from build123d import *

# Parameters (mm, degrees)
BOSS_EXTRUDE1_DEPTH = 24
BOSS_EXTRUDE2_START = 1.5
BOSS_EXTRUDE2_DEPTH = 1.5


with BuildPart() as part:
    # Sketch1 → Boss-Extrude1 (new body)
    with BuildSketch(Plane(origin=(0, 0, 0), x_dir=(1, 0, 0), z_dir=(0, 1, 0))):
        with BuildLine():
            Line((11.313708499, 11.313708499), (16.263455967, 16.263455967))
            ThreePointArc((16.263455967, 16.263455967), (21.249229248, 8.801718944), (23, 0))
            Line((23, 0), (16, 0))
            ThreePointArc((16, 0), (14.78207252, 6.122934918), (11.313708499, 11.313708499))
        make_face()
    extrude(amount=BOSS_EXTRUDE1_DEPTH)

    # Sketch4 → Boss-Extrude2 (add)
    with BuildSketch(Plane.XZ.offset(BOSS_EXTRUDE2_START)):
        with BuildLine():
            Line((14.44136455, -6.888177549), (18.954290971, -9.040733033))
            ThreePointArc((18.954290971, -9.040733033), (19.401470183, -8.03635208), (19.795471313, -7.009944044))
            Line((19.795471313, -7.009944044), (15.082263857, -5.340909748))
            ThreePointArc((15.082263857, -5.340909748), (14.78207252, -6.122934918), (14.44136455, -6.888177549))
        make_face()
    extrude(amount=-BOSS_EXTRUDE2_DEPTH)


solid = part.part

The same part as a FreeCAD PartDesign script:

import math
import FreeCAD as App
import Part
import Sketcher
Q = App.Units.Quantity

doc = App.newDocument("Part")
params = doc.addObject("Spreadsheet::Sheet", "Params")
for row, (alias, value) in enumerate([
    ("sketch1_radius", "16 mm"),
    ("sketch1_radius2", "23 mm"),
    ("pad1_length", "24 mm"),
    ("sketch2_radius", "21 mm"),
    ("sketch2_radius2", "16 mm"),
    ("pad2_length", "1.5 mm"),
], start=1):
    params.set(f"A{row}", alias)
    params.set(f"B{row}", "=" + value)
    params.setAlias(f"B{row}", alias)

body = doc.addObject("PartDesign::Body", "Body")

sketch1 = doc.addObject("Sketcher::SketchObject", "Sketch")
body.addObject(sketch1)
sketch1.AttachmentSupport = (doc.XZ_Plane, [""])
sketch1.MapMode = "FlatFace"
sketch1.addGeometry(Part.LineSegment(App.Vector(16.263456, -16.263456, 0), App.Vector(11.313708, -11.313708, 0)), False)
sketch1.addGeometry(Part.ArcOfCircle(Part.Circle(App.Vector(0, 0, 0), App.Vector(0, 0, 1), 16), math.radians(-45), math.radians(0)), False)
sketch1.addGeometry(Part.LineSegment(App.Vector(16, 0, 0), App.Vector(23, 0, 0)), False)
sketch1.addGeometry(Part.ArcOfCircle(Part.Circle(App.Vector(0, 0, 0), App.Vector(0, 0, 1), 23), math.radians(-45), math.radians(0)), False)
sketch1.addConstraint(Sketcher.Constraint("Coincident", 0, 2, 1, 1))
sketch1.addConstraint(Sketcher.Constraint("Coincident", 1, 2, 2, 1))
sketch1.addConstraint(Sketcher.Constraint("Coincident", 2, 2, 3, 2))
sketch1.addConstraint(Sketcher.Constraint("Coincident", 3, 1, 0, 1))
sketch1.addConstraint(Sketcher.Constraint("Horizontal", 2))
sketch1.addConstraint(Sketcher.Constraint("Coincident", 1, 3, -1, 1))
sketch1.addConstraint(Sketcher.Constraint("Coincident", 3, 3, -1, 1))
sketch1.addConstraint(Sketcher.Constraint("PointOnObject", 1, 2, -1))
sketch1.addConstraint(Sketcher.Constraint("Radius", 1, 16.0))
sketch1.addConstraint(Sketcher.Constraint("Radius", 3, 23.0))
sketch1.addConstraint(Sketcher.Constraint("Angle", 0, Q("135 deg")))
sketch1.addConstraint(Sketcher.Constraint("DistanceX", -1, 1, 0, 2, 11.313708))
sketch1.setExpression("Constraints[8]", "Params.sketch1_radius")
sketch1.setExpression("Constraints[9]", "Params.sketch1_radius2")
pad1 = doc.addObject("PartDesign::Pad", "Pad")
body.addObject(pad1)
pad1.Profile = sketch1
pad1.setExpression("Length", "Params.pad1_length")
pad1.Reversed = True

sketch2 = doc.addObject("Sketcher::SketchObject", "Sketch001")
body.addObject(sketch2)
sketch2.AttachmentSupport = (doc.XZ_Plane, [""])
sketch2.MapMode = "FlatFace"
sketch2.AttachmentOffset = App.Placement(App.Vector(0, 0, 1.5), App.Rotation())
sketch2.addGeometry(Part.LineSegment(App.Vector(14.441365, -6.888178, 0), App.Vector(18.954291, -9.040733, 0)), False)
sketch2.addGeometry(Part.ArcOfCircle(Part.Circle(App.Vector(0, 0, 0), App.Vector(0, 0, 1), 21), math.radians(-25.5), math.radians(-19.5)), False)
sketch2.addGeometry(Part.LineSegment(App.Vector(19.795471, -7.009944, 0), App.Vector(15.082264, -5.34091, 0)), False)
sketch2.addGeometry(Part.ArcOfCircle(Part.Circle(App.Vector(0, 0, 0), App.Vector(0, 0, 1), 16), math.radians(-25.5), math.radians(-19.5)), False)
sketch2.addConstraint(Sketcher.Constraint("Coincident", 0, 2, 1, 1))
sketch2.addConstraint(Sketcher.Constraint("Coincident", 1, 2, 2, 1))
sketch2.addConstraint(Sketcher.Constraint("Coincident", 2, 2, 3, 2))
sketch2.addConstraint(Sketcher.Constraint("Coincident", 3, 1, 0, 1))
sketch2.addConstraint(Sketcher.Constraint("Coincident", 1, 3, -1, 1))
sketch2.addConstraint(Sketcher.Constraint("Coincident", 3, 3, -1, 1))
sketch2.addConstraint(Sketcher.Constraint("Radius", 1, 21.0))
sketch2.addConstraint(Sketcher.Constraint("Radius", 3, 16.0))
sketch2.addConstraint(Sketcher.Constraint("Angle", 0, Q("-25.5 deg")))
sketch2.addConstraint(Sketcher.Constraint("Angle", 2, Q("160.5 deg")))
sketch2.addConstraint(Sketcher.Constraint("DistanceX", 3, 1, 2, 2, 0.640899))
sketch2.addConstraint(Sketcher.Constraint("DistanceX", -1, 1, 0, 2, 18.954291))
sketch2.setExpression("Constraints[6]", "Params.sketch2_radius")
sketch2.setExpression("Constraints[7]", "Params.sketch2_radius2")
pad2 = doc.addObject("PartDesign::Pad", "Pad001")
body.addObject(pad2)
pad2.Profile = sketch2
pad2.setExpression("Length", "Params.pad2_length")
pad2.Reversed = True

doc.recompute()
